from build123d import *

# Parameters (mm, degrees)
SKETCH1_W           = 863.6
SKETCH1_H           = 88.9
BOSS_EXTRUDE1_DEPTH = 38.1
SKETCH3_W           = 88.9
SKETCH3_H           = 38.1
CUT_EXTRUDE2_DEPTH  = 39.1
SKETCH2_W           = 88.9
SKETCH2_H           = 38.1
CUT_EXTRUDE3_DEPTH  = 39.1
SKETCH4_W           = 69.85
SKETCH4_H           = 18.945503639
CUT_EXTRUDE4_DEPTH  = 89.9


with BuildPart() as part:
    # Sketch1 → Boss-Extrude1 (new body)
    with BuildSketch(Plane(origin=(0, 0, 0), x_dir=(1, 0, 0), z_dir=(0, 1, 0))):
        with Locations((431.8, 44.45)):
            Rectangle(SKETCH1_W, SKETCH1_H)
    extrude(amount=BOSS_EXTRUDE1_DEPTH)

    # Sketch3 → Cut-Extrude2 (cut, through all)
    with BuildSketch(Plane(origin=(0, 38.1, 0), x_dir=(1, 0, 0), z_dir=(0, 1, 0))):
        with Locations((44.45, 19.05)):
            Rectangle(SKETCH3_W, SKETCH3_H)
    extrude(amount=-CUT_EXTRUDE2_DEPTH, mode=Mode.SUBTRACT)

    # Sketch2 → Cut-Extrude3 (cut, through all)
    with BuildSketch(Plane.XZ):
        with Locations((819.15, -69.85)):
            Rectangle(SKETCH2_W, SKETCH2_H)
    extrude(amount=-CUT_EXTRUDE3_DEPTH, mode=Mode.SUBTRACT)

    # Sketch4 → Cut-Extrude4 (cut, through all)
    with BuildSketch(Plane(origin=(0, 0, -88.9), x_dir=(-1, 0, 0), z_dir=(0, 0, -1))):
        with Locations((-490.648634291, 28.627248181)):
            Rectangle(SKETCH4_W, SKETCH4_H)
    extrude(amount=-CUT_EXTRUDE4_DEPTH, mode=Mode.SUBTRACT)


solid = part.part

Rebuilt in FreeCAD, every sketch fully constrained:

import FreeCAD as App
import Part
import Sketcher
from FreeCAD import Vector
Q = App.Units.Quantity


def add_polygon(sketch, points):
    """Adds a closed chain of lines whose ends are joined by coincident constraints."""
    first, n = sketch.GeometryCount, len(points)
    for a, b in zip(points, points[1:] + points[:1]):
        sketch.addGeometry(Part.LineSegment(App.Vector(*a, 0), App.Vector(*b, 0)), False)
    for i in range(n):
        sketch.addConstraint(Sketcher.Constraint("Coincident", first + i, 2, first + (i + 1) % n, 1))

doc = App.newDocument("Part")
body = doc.addObject("PartDesign::Body", "Body")

# Sketch on XZ plane
sketch1 = body.newObject("Sketcher::SketchObject", "Sketch")
sketch1.AttachmentSupport = (doc.getObject("XZ_Plane"), [""])
sketch1.MapMode = "FlatFace"
add_polygon(sketch1, [(0, -88.9), (0, 0), (863.6, 0), (863.6, -88.9)])  # lines 0-3
sketch1.addConstraint(Sketcher.Constraint("Vertical", 0))
sketch1.addConstraint(Sketcher.Constraint("Horizontal", 1))
sketch1.addConstraint(Sketcher.Constraint("Vertical", 2))
sketch1.addConstraint(Sketcher.Constraint("Horizontal", 3))
sketch1.addConstraint(Sketcher.Constraint("Coincident", 0, 2, -1, 1))
sketch1.addConstraint(Sketcher.Constraint("DistanceX", 1, 1, 1, 2, Q("34 in")))
sketch1.addConstraint(Sketcher.Constraint("DistanceY", 0, 1, 0, 2, Q("3.5 in")))
pad1 = body.newObject("PartDesign::Pad", "Pad")
pad1.Profile = sketch1
pad1.Length = Q("1.5 in")
pad1.Reversed = True

# Sketch on XZ plane
sketch2 = body.newObject("Sketcher::SketchObject", "Sketch001")
sketch2.AttachmentSupport = (doc.getObject("XZ_Plane"), [""])
sketch2.MapMode = "FlatFace"
sketch2.AttachmentOffset = App.Placement(Vector(0, 0, -1.5 * 25.4), App.Rotation())
add_polygon(sketch2, [(0, -38.1), (0, 0), (88.9, 0), (88.9, -38.1)])  # lines 0-3
sketch2.addConstraint(Sketcher.Constraint("Vertical", 0))
sketch2.addConstraint(Sketcher.Constraint("Horizontal", 1))
sketch2.addConstraint(Sketcher.Constraint("Vertical", 2))
sketch2.addConstraint(Sketcher.Constraint("Horizontal", 3))
sketch2.addConstraint(Sketcher.Constraint("Coincident", 0, 2, -1, 1))
sketch2.addConstraint(Sketcher.Constraint("DistanceX", 1, 1, 1, 2, Q("3.5 in")))
sketch2.addConstraint(Sketcher.Constraint("DistanceY", 0, 1, 0, 2, Q("1.5 in")))
pocket1 = body.newObject("PartDesign::Pocket", "Pocket")
pocket1.Profile = sketch2
pocket1.Type = "ThroughAll"
pocket1.Reversed = True

# Sketch on XZ plane
sketch3 = body.newObject("Sketcher::SketchObject", "Sketch002")
sketch3.AttachmentSupport = (doc.getObject("XZ_Plane"), [""])
sketch3.MapMode = "FlatFace"
add_polygon(sketch3, [(774.7, -50.8), (774.7, -88.9), (863.6, -88.9), (863.6, -50.8)])  # lines 0-3
sketch3.addConstraint(Sketcher.Constraint("Vertical", 0))
sketch3.addConstraint(Sketcher.Constraint("Horizontal", 1))
sketch3.addConstraint(Sketcher.Constraint("Vertical", 2))
sketch3.addConstraint(Sketcher.Constraint("Horizontal", 3))
sketch3.addConstraint(Sketcher.Constraint("DistanceX", 1, 1, 1, 2, Q("3.5 in")))
sketch3.addConstraint(Sketcher.Constraint("DistanceY", 0, 2, 0, 1, Q("1.5 in")))
sketch3.addConstraint(Sketcher.Constraint("DistanceX", -1, 1, 1, 2, Q("34 in")))
sketch3.addConstraint(Sketcher.Constraint("DistanceY", 2, 2, -1, 1, Q("2 in")))
pocket2 = body.newObject("PartDesign::Pocket", "Pocket001")
pocket2.Profile = sketch3
pocket2.Type = "ThroughAll"

# Sketch on XY plane
sketch4 = body.newObject("Sketcher::SketchObject", "Sketch003")
sketch4.AttachmentSupport = (doc.getObject("XY_Plane"), [""])
sketch4.MapMode = "FlatFace"
sketch4.AttachmentOffset = App.Placement(Vector(0, 0, -3.5 * 25.4), App.Rotation())
add_polygon(sketch4, [(525.573634, 38.1), (525.573634, 19.154496), (455.723634, 19.154496), (455.723634, 38.1)])  # lines 0-3
sketch4.addConstraint(Sketcher.Constraint("Vertical", 0))
sketch4.addConstraint(Sketcher.Constraint("Horizontal", 1))
sketch4.addConstraint(Sketcher.Constraint("Vertical", 2))
sketch4.addConstraint(Sketcher.Constraint("Horizontal", 3))
sketch4.addConstraint(Sketcher.Constraint("DistanceX", 1, 2, 1, 1, Q("2.75 in")))
sketch4.addConstraint(Sketcher.Constraint("DistanceY", -1, 1, 2, 2, Q("1.5 in")))
sketch4.addConstraint(Sketcher.Constraint("DistanceY", 0, 2, 0, 1, 18.945504))
sketch4.addConstraint(Sketcher.Constraint("DistanceX", -1, 1, 0, 2, 525.573634))
pocket3 = body.newObject("PartDesign::Pocket", "Pocket002")
pocket3.Profile = sketch4
pocket3.Type = "ThroughAll"
pocket3.Reversed = True

doc.recompute()
